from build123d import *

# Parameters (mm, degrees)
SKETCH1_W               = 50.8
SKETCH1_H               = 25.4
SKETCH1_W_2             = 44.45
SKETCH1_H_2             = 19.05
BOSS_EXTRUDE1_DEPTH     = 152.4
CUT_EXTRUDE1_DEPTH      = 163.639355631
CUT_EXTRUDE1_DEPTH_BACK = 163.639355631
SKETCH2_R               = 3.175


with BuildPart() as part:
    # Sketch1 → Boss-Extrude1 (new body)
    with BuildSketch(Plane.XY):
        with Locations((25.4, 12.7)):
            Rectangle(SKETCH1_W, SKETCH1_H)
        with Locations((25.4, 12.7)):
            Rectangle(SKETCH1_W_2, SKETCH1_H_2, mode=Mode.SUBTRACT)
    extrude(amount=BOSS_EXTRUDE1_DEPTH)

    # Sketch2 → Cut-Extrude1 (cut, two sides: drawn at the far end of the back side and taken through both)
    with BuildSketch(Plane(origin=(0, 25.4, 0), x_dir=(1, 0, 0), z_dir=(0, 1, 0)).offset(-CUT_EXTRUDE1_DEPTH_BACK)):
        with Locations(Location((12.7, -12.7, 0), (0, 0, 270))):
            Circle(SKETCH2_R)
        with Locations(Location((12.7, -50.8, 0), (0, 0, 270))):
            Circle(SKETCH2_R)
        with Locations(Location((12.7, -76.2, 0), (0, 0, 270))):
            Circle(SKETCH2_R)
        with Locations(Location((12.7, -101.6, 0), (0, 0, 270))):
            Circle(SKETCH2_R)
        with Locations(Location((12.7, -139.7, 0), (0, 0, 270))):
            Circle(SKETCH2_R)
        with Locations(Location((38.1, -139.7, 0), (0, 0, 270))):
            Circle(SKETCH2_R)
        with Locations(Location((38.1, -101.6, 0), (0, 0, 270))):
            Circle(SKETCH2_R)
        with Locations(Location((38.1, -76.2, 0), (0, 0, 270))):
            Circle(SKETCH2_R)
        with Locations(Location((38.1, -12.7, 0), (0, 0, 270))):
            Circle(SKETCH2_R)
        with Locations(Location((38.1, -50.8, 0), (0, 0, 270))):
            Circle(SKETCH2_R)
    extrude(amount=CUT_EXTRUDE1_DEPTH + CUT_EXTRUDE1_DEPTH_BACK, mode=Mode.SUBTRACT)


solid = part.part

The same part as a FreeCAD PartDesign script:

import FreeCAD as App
import Part
import Sketcher
Q = App.Units.Quantity


def add_polygon(sketch, points):
    """Adds a closed chain of lines whose ends are joined by coincident constraints."""
    first, n = sketch.GeometryCount, len(points)
    for a, b in zip(points, points[1:] + points[:1]):
        sketch.addGeometry(Part.LineSegment(App.Vector(*a, 0), App.Vector(*b, 0)), False)
    for i in range(n):
        sketch.addConstraint(Sketcher.Constraint("Coincident", first + i, 2, first + (i + 1) % n, 1))

doc = App.newDocument("Part")
body = doc.addObject("PartDesign::Body", "Body")

sketch1 = body.newObject("Sketcher::SketchObject", "Sketch")
sketch1.AttachmentSupport = (doc.getObject("XY_Plane"), [""])
sketch1.MapMode = "FlatFace"
add_polygon(sketch1, [(0, 25), (0, 0), (51, 0), (51, 25)])
add_polygon(sketch1, [(48, 3), (3, 3), (3, 22), (48, 22)])
sketch1.addConstraint([
    Sketcher.Constraint("Vertical", 0),
    Sketcher.Constraint("Horizontal", 1),
    Sketcher.Constraint("Vertical", 2),
    Sketcher.Constraint("Horizontal", 3),
    Sketcher.Constraint("Horizontal", 4),
    Sketcher.Constraint("Vertical", 5),
    Sketcher.Constraint("Horizontal", 6),
    Sketcher.Constraint("Vertical", 7),
    Sketcher.Constraint("Coincident", 0, 2, -1, 1),
    Sketcher.Constraint("DistanceX", 1, 1, 1, 2, Q("2 in")),
    Sketcher.Constraint("DistanceY", 0, 2, 0, 1, Q("1 in")),
    Sketcher.Constraint("DistanceX", 4, 2, 4, 1, Q("1.75 in")),
    Sketcher.Constraint("DistanceY", 5, 1, 5, 2, Q("0.75 in")),
    Sketcher.Constraint("DistanceX", -1, 1, 4, 2, Q("0.125 in")),
    Sketcher.Constraint("DistanceY", -1, 1, 4, 2, Q("0.125 in")),
])
pad1 = body.newObject("PartDesign::Pad", "Pad")
pad1.Profile = sketch1
pad1.Length = Q("6 in")

sketch2 = body.newObject("Sketcher::SketchObject", "Sketch001")
sketch2.AttachmentSupport = (doc.getObject("XZ_Plane"), [""])
sketch2.MapMode = "FlatFace"
sketch2.AttachmentOffset = App.Placement(App.Vector(0, 0, -1 * 25.4), App.Rotation())
sketch2.addGeometry([
    Part.Circle(App.Vector(12.7, 12.7, 0), App.Vector(0, 0, 1), 3.2),
    Part.Circle(App.Vector(12.7, 50.8, 0), App.Vector(0, 0, 1), 3.2),
    Part.Circle(App.Vector(12.7, 76.2, 0), App.Vector(0, 0, 1), 3.2),
    Part.Circle(App.Vector(12.7, 101.6, 0), App.Vector(0, 0, 1), 3.2),
    Part.Circle(App.Vector(12.7, 139.7, 0), App.Vector(0, 0, 1), 3.2),
    Part.Circle(App.Vector(38.1, 139.7, 0), App.Vector(0, 0, 1), 3.2),
    Part.Circle(App.Vector(38.1, 101.6, 0), App.Vector(0, 0, 1), 3.2),
    Part.Circle(App.Vector(38.1, 76.2, 0), App.Vector(0, 0, 1), 3.2),
    Part.Circle(App.Vector(38.1, 12.7, 0), App.Vector(0, 0, 1), 3.2),
    Part.Circle(App.Vector(38.1, 50.8, 0), App.Vector(0, 0, 1), 3.2),
], False)
sketch2.addConstraint([
    Sketcher.Constraint("Equal", 0, 1),
    Sketcher.Constraint("Equal", 1, 2),
    Sketcher.Constraint("Equal", 2, 3),
    Sketcher.Constraint("Equal", 3, 4),
    Sketcher.Constraint("Equal", 4, 5),
    Sketcher.Constraint("Equal", 5, 6),
    Sketcher.Constraint("Equal", 6, 7),
    Sketcher.Constraint("Equal", 7, 8),
    Sketcher.Constraint("Equal", 8, 9),
    Sketcher.Constraint("Horizontal", 4, 3, 5, 3),
    Sketcher.Constraint("Horizontal", 3, 3, 6, 3),
    Sketcher.Constraint("Horizontal", 2, 3, 7, 3),
    Sketcher.Constraint("Horizontal", 0, 3, 8, 3),
    Sketcher.Constraint("Horizontal", 1, 3, 9, 3),
    Sketcher.Constraint("Vertical", 0, 3, 1, 3),
    Sketcher.Constraint("Vertical", 1, 3, 2, 3),
    Sketcher.Constraint("Vertical", 2, 3, 3, 3),
    Sketcher.Constraint("Vertical", 3, 3, 4, 3),
    Sketcher.Constraint("Vertical", 5, 3, 6, 3),
    Sketcher.Constraint("Vertical", 6, 3, 7, 3),
    Sketcher.Constraint("Vertical", 7, 3, 8, 3),
    Sketcher.Constraint("Vertical", 8, 3, 9, 3),
    Sketcher.Constraint("Diameter", 0, Q("0.25 in")),
    Sketcher.Constraint("DistanceY", -1, 1, 1, 3, Q("2 in")),
    Sketcher.Constraint("DistanceY", -1, 1, 2, 3, Q("3 in")),
    Sketcher.Constraint("DistanceY", -1, 1, 3, 3, Q("4 in")),
    Sketcher.Constraint("DistanceY", 0, 3, 4, 3, Q("5 in")),
    Sketcher.Constraint("DistanceX", 4, 3, 5, 3, Q("1 in")),
    Sketcher.Constraint("DistanceX", -1, 1, 0, 3, Q("0.5 in")),
    Sketcher.Constraint("DistanceY", -1, 1, 0, 3, Q("0.5 in")),
])
pocket1 = body.newObject("PartDesign::Pocket", "Pocket")
pocket1.Profile = sketch2
pocket1.Type = "ThroughAll"
pocket1.Midplane = True

doc.recompute()
